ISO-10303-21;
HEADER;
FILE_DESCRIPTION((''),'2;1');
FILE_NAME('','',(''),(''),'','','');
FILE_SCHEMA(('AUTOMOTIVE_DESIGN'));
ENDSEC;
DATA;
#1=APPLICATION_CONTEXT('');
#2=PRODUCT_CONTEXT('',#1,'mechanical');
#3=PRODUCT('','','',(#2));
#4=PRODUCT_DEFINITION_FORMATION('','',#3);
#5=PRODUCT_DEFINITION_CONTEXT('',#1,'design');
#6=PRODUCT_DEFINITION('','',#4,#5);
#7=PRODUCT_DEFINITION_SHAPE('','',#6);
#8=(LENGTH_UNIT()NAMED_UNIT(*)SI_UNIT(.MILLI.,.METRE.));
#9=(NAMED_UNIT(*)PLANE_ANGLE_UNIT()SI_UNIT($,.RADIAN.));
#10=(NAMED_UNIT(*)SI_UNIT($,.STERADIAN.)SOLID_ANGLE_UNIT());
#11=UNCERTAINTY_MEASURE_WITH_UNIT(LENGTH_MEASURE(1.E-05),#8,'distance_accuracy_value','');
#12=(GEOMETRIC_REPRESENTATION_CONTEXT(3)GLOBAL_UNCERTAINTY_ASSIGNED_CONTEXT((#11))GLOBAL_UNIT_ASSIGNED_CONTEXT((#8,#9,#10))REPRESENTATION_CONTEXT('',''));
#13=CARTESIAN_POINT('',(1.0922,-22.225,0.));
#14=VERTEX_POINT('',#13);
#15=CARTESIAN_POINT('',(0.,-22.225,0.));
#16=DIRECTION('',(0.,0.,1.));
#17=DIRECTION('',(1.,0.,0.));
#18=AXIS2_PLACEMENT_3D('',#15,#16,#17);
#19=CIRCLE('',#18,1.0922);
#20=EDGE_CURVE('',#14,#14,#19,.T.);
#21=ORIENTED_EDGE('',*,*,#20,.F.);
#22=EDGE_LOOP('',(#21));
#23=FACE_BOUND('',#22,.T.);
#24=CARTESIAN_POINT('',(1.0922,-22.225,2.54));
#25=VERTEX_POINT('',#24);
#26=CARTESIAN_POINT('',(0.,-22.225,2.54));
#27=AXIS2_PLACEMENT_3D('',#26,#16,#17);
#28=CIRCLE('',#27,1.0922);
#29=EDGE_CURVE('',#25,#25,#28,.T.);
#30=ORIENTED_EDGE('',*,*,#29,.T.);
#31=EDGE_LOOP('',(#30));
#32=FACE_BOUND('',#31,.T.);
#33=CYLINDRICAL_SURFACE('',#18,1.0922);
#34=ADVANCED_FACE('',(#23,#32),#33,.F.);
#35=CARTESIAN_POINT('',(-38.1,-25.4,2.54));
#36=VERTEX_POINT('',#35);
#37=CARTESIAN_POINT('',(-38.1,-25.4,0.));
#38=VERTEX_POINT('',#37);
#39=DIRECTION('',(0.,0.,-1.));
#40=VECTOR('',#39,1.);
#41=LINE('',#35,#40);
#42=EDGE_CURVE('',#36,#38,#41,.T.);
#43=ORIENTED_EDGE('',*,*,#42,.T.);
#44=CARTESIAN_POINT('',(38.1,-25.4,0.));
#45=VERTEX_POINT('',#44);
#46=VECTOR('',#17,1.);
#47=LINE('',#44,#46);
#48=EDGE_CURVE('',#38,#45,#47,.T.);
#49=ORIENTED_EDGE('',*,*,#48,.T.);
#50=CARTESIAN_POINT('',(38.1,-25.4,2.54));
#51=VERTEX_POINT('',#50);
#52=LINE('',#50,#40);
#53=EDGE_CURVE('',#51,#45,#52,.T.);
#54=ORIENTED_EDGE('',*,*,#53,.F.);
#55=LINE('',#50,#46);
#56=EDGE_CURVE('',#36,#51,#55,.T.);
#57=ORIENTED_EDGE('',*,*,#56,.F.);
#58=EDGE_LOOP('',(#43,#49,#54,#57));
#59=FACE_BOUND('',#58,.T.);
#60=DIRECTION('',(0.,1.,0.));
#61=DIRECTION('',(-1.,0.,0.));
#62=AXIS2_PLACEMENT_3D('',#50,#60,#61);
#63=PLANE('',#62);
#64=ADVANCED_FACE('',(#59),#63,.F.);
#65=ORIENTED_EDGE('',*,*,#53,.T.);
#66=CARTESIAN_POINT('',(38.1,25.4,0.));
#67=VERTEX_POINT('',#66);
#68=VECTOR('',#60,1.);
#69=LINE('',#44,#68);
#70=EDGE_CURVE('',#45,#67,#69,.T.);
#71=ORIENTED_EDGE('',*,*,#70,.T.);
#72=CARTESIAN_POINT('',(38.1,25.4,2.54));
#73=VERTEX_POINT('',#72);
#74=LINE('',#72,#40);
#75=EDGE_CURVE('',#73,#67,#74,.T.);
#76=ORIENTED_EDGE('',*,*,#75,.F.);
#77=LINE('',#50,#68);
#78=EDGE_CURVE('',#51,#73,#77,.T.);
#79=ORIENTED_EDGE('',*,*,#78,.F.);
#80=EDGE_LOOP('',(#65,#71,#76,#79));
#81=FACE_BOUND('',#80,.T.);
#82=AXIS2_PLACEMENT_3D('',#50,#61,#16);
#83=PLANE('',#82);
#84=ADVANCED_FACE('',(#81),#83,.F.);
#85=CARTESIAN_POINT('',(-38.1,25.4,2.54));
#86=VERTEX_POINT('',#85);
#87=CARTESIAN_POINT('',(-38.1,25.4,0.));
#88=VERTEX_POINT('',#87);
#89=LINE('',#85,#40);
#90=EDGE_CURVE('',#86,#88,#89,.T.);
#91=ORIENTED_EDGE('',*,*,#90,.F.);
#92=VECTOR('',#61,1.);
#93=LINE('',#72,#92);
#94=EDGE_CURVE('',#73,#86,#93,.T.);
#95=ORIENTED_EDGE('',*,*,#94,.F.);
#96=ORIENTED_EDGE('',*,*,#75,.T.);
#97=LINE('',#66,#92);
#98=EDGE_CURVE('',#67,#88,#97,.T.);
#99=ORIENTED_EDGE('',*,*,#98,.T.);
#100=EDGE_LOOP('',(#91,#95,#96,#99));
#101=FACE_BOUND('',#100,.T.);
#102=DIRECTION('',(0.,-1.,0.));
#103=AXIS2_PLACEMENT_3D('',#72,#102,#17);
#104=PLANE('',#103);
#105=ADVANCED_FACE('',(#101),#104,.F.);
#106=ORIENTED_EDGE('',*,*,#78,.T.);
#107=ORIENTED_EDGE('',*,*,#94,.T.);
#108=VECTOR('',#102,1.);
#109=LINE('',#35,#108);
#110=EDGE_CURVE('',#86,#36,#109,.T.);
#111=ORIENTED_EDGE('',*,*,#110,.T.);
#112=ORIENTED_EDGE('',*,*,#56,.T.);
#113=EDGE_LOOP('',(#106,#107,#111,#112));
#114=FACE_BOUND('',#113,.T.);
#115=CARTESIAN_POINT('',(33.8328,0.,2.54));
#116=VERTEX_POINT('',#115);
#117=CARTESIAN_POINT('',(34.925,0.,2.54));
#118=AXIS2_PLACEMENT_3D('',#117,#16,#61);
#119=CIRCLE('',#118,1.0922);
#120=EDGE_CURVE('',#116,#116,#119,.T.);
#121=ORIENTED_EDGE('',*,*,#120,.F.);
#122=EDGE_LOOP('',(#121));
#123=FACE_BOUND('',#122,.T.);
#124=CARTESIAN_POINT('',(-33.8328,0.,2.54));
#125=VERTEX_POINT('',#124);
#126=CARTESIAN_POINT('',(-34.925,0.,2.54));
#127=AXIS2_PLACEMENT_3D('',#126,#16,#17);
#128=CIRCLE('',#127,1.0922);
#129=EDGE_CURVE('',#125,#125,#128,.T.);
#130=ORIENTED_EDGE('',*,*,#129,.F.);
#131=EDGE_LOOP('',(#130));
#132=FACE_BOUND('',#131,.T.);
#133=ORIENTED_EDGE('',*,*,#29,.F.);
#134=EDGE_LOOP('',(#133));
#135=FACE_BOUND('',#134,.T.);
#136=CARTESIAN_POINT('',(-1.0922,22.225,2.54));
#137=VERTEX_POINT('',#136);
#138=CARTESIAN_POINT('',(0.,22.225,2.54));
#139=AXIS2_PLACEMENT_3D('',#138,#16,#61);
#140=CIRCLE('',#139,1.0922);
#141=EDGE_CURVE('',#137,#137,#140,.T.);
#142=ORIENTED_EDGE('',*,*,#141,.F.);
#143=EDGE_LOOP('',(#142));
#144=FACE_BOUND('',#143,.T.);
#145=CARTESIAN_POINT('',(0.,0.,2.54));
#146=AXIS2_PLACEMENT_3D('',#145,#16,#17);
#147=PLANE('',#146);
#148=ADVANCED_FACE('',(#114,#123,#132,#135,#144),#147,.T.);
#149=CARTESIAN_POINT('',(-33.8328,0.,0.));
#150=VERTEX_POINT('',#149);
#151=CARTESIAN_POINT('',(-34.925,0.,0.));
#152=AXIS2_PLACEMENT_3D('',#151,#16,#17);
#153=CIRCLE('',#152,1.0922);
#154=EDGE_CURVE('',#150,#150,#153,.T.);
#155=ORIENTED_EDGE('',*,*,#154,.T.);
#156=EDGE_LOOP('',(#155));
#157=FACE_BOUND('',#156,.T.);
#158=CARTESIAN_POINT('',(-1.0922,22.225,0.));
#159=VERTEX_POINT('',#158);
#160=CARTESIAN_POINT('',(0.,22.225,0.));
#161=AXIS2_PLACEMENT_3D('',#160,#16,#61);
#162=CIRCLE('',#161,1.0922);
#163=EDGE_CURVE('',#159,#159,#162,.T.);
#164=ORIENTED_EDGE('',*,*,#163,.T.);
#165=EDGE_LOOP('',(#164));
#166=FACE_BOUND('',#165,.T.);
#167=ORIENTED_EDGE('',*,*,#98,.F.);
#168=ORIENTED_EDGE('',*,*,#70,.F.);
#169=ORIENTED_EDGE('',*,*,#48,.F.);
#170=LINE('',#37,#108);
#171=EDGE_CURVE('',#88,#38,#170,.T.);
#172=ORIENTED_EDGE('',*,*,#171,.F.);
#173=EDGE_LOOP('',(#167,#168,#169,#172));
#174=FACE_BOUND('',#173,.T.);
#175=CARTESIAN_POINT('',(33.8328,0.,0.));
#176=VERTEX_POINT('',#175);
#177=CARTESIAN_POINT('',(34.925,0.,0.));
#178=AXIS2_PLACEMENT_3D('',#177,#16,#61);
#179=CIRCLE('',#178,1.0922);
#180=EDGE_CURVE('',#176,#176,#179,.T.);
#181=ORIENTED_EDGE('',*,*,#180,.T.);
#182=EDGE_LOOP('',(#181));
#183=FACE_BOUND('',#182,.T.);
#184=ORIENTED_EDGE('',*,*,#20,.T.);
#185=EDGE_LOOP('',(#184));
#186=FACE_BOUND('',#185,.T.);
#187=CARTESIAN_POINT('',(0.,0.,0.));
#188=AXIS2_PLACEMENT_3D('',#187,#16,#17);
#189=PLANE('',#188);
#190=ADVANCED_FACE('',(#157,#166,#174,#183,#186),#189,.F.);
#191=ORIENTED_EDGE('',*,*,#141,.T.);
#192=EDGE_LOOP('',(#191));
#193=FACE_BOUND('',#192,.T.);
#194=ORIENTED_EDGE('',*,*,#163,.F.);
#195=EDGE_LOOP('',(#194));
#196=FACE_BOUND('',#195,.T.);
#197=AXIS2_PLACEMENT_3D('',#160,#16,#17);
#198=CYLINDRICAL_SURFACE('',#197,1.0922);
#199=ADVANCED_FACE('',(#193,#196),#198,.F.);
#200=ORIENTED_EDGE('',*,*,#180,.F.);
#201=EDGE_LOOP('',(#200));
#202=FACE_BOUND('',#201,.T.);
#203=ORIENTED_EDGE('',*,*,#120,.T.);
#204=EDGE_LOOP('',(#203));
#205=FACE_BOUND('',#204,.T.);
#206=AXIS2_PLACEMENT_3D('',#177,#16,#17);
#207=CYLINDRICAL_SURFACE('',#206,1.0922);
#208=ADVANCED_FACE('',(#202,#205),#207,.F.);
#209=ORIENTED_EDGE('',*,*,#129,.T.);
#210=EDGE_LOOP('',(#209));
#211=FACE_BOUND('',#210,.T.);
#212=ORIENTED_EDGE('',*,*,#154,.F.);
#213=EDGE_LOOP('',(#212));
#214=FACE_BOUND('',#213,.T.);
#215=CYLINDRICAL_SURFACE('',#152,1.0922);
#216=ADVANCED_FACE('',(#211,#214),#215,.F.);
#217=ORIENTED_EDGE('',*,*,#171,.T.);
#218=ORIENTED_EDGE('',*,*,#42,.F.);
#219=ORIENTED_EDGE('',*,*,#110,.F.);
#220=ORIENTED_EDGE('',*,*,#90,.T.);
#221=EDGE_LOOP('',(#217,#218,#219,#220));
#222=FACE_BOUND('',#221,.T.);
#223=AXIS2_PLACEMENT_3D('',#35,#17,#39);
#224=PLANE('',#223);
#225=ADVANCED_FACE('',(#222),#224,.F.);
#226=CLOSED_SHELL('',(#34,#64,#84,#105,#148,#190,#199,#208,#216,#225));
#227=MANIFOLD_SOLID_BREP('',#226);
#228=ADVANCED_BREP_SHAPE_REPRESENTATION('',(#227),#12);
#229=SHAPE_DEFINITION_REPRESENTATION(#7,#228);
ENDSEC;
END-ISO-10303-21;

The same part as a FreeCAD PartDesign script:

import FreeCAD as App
import Part
import Sketcher
from FreeCAD import Vector
Q = App.Units.Quantity

doc = App.newDocument("Part")
body = doc.addObject("PartDesign::Body", "Body")

sketch1 = body.newObject("Sketcher::SketchObject", "Sketch")
sketch1.AttachmentSupport = (doc.getObject("XY_Plane"), [""])
sketch1.MapMode = "FlatFace"
sketch1.addGeometry([
    Part.LineSegment(Vector(-38.1, 25.4, 0), Vector(-38.1, -25.4, 0)),
    Part.LineSegment(Vector(-38.1, -25.4, 0), Vector(38.1, -25.4, 0)),
    Part.LineSegment(Vector(38.1, -25.4, 0), Vector(38.1, 25.4, 0)),
    Part.LineSegment(Vector(38.1, 25.4, 0), Vector(-38.1, 25.4, 0)),
], False)
sketch1.addConstraint([
    Sketcher.Constraint("Coincident", 0, 2, 1, 1),
    Sketcher.Constraint("Coincident", 1, 2, 2, 1),
    Sketcher.Constraint("Coincident", 2, 2, 3, 1),
    Sketcher.Constraint("Coincident", 3, 2, 0, 1),
    Sketcher.Constraint("Vertical", 0),
    Sketcher.Constraint("Horizontal", 1),
    Sketcher.Constraint("Vertical", 2),
    Sketcher.Constraint("Horizontal", 3),
    Sketcher.Constraint("Symmetric", 0, 2, 2, 2, -1, 1),
    Sketcher.Constraint("DistanceX", 1, 1, 1, 2, Q("3 in")),
    Sketcher.Constraint("DistanceY", 0, 2, 0, 1, Q("2 in")),
])
pad1 = body.newObject("PartDesign::Pad", "Pad")
pad1.Profile = sketch1
pad1.Length = Q("0.1 in")

sketch2 = body.newObject("Sketcher::SketchObject", "Sketch001")
sketch2.AttachmentSupport = (doc.getObject("XY_Plane"), [""])
sketch2.MapMode = "FlatFace"
sketch2.AttachmentOffset = App.Placement(Vector(0, 0, 0.1 * 25.4), App.Rotation())
sketch2.addGeometry([
    Part.Circle(Vector(-34.925, 0, 0), Vector(0, 0, 1), 1.0922),
    Part.Circle(Vector(34.925, 0, 0), Vector(0, 0, 1), 1.0922),
    Part.Circle(Vector(0, -22.225, 0), Vector(0, 0, 1), 1.0922),
    Part.Circle(Vector(0, 22.225, 0), Vector(0, 0, 1), 1.0922),
], False)
sketch2.addConstraint([
    Sketcher.Constraint("Equal", 0, 1),
    Sketcher.Constraint("Equal", 1, 2),
    Sketcher.Constraint("Equal", 2, 3),
    Sketcher.Constraint("Symmetric", 0, 3, 1, 3, -1, 1),
    Sketcher.Constraint("Symmetric", 2, 3, 3, 3, -1, 1),
    Sketcher.Constraint("PointOnObject", 0, 3, -1),
    Sketcher.Constraint("PointOnObject", 2, 3, -2),
    Sketcher.Constraint("Diameter", 0, Q("0.086 in")),
    Sketcher.Constraint("DistanceX", 0, 3, 1, 3, Q("2.75 in")),
    Sketcher.Constraint("DistanceY", 2, 3, 3, 3, Q("1.75 in")),
])
pocket1 = body.newObject("PartDesign::Pocket", "Pocket")
pocket1.Profile = sketch2
pocket1.Length = Q("0.1 in")

doc.recompute()
